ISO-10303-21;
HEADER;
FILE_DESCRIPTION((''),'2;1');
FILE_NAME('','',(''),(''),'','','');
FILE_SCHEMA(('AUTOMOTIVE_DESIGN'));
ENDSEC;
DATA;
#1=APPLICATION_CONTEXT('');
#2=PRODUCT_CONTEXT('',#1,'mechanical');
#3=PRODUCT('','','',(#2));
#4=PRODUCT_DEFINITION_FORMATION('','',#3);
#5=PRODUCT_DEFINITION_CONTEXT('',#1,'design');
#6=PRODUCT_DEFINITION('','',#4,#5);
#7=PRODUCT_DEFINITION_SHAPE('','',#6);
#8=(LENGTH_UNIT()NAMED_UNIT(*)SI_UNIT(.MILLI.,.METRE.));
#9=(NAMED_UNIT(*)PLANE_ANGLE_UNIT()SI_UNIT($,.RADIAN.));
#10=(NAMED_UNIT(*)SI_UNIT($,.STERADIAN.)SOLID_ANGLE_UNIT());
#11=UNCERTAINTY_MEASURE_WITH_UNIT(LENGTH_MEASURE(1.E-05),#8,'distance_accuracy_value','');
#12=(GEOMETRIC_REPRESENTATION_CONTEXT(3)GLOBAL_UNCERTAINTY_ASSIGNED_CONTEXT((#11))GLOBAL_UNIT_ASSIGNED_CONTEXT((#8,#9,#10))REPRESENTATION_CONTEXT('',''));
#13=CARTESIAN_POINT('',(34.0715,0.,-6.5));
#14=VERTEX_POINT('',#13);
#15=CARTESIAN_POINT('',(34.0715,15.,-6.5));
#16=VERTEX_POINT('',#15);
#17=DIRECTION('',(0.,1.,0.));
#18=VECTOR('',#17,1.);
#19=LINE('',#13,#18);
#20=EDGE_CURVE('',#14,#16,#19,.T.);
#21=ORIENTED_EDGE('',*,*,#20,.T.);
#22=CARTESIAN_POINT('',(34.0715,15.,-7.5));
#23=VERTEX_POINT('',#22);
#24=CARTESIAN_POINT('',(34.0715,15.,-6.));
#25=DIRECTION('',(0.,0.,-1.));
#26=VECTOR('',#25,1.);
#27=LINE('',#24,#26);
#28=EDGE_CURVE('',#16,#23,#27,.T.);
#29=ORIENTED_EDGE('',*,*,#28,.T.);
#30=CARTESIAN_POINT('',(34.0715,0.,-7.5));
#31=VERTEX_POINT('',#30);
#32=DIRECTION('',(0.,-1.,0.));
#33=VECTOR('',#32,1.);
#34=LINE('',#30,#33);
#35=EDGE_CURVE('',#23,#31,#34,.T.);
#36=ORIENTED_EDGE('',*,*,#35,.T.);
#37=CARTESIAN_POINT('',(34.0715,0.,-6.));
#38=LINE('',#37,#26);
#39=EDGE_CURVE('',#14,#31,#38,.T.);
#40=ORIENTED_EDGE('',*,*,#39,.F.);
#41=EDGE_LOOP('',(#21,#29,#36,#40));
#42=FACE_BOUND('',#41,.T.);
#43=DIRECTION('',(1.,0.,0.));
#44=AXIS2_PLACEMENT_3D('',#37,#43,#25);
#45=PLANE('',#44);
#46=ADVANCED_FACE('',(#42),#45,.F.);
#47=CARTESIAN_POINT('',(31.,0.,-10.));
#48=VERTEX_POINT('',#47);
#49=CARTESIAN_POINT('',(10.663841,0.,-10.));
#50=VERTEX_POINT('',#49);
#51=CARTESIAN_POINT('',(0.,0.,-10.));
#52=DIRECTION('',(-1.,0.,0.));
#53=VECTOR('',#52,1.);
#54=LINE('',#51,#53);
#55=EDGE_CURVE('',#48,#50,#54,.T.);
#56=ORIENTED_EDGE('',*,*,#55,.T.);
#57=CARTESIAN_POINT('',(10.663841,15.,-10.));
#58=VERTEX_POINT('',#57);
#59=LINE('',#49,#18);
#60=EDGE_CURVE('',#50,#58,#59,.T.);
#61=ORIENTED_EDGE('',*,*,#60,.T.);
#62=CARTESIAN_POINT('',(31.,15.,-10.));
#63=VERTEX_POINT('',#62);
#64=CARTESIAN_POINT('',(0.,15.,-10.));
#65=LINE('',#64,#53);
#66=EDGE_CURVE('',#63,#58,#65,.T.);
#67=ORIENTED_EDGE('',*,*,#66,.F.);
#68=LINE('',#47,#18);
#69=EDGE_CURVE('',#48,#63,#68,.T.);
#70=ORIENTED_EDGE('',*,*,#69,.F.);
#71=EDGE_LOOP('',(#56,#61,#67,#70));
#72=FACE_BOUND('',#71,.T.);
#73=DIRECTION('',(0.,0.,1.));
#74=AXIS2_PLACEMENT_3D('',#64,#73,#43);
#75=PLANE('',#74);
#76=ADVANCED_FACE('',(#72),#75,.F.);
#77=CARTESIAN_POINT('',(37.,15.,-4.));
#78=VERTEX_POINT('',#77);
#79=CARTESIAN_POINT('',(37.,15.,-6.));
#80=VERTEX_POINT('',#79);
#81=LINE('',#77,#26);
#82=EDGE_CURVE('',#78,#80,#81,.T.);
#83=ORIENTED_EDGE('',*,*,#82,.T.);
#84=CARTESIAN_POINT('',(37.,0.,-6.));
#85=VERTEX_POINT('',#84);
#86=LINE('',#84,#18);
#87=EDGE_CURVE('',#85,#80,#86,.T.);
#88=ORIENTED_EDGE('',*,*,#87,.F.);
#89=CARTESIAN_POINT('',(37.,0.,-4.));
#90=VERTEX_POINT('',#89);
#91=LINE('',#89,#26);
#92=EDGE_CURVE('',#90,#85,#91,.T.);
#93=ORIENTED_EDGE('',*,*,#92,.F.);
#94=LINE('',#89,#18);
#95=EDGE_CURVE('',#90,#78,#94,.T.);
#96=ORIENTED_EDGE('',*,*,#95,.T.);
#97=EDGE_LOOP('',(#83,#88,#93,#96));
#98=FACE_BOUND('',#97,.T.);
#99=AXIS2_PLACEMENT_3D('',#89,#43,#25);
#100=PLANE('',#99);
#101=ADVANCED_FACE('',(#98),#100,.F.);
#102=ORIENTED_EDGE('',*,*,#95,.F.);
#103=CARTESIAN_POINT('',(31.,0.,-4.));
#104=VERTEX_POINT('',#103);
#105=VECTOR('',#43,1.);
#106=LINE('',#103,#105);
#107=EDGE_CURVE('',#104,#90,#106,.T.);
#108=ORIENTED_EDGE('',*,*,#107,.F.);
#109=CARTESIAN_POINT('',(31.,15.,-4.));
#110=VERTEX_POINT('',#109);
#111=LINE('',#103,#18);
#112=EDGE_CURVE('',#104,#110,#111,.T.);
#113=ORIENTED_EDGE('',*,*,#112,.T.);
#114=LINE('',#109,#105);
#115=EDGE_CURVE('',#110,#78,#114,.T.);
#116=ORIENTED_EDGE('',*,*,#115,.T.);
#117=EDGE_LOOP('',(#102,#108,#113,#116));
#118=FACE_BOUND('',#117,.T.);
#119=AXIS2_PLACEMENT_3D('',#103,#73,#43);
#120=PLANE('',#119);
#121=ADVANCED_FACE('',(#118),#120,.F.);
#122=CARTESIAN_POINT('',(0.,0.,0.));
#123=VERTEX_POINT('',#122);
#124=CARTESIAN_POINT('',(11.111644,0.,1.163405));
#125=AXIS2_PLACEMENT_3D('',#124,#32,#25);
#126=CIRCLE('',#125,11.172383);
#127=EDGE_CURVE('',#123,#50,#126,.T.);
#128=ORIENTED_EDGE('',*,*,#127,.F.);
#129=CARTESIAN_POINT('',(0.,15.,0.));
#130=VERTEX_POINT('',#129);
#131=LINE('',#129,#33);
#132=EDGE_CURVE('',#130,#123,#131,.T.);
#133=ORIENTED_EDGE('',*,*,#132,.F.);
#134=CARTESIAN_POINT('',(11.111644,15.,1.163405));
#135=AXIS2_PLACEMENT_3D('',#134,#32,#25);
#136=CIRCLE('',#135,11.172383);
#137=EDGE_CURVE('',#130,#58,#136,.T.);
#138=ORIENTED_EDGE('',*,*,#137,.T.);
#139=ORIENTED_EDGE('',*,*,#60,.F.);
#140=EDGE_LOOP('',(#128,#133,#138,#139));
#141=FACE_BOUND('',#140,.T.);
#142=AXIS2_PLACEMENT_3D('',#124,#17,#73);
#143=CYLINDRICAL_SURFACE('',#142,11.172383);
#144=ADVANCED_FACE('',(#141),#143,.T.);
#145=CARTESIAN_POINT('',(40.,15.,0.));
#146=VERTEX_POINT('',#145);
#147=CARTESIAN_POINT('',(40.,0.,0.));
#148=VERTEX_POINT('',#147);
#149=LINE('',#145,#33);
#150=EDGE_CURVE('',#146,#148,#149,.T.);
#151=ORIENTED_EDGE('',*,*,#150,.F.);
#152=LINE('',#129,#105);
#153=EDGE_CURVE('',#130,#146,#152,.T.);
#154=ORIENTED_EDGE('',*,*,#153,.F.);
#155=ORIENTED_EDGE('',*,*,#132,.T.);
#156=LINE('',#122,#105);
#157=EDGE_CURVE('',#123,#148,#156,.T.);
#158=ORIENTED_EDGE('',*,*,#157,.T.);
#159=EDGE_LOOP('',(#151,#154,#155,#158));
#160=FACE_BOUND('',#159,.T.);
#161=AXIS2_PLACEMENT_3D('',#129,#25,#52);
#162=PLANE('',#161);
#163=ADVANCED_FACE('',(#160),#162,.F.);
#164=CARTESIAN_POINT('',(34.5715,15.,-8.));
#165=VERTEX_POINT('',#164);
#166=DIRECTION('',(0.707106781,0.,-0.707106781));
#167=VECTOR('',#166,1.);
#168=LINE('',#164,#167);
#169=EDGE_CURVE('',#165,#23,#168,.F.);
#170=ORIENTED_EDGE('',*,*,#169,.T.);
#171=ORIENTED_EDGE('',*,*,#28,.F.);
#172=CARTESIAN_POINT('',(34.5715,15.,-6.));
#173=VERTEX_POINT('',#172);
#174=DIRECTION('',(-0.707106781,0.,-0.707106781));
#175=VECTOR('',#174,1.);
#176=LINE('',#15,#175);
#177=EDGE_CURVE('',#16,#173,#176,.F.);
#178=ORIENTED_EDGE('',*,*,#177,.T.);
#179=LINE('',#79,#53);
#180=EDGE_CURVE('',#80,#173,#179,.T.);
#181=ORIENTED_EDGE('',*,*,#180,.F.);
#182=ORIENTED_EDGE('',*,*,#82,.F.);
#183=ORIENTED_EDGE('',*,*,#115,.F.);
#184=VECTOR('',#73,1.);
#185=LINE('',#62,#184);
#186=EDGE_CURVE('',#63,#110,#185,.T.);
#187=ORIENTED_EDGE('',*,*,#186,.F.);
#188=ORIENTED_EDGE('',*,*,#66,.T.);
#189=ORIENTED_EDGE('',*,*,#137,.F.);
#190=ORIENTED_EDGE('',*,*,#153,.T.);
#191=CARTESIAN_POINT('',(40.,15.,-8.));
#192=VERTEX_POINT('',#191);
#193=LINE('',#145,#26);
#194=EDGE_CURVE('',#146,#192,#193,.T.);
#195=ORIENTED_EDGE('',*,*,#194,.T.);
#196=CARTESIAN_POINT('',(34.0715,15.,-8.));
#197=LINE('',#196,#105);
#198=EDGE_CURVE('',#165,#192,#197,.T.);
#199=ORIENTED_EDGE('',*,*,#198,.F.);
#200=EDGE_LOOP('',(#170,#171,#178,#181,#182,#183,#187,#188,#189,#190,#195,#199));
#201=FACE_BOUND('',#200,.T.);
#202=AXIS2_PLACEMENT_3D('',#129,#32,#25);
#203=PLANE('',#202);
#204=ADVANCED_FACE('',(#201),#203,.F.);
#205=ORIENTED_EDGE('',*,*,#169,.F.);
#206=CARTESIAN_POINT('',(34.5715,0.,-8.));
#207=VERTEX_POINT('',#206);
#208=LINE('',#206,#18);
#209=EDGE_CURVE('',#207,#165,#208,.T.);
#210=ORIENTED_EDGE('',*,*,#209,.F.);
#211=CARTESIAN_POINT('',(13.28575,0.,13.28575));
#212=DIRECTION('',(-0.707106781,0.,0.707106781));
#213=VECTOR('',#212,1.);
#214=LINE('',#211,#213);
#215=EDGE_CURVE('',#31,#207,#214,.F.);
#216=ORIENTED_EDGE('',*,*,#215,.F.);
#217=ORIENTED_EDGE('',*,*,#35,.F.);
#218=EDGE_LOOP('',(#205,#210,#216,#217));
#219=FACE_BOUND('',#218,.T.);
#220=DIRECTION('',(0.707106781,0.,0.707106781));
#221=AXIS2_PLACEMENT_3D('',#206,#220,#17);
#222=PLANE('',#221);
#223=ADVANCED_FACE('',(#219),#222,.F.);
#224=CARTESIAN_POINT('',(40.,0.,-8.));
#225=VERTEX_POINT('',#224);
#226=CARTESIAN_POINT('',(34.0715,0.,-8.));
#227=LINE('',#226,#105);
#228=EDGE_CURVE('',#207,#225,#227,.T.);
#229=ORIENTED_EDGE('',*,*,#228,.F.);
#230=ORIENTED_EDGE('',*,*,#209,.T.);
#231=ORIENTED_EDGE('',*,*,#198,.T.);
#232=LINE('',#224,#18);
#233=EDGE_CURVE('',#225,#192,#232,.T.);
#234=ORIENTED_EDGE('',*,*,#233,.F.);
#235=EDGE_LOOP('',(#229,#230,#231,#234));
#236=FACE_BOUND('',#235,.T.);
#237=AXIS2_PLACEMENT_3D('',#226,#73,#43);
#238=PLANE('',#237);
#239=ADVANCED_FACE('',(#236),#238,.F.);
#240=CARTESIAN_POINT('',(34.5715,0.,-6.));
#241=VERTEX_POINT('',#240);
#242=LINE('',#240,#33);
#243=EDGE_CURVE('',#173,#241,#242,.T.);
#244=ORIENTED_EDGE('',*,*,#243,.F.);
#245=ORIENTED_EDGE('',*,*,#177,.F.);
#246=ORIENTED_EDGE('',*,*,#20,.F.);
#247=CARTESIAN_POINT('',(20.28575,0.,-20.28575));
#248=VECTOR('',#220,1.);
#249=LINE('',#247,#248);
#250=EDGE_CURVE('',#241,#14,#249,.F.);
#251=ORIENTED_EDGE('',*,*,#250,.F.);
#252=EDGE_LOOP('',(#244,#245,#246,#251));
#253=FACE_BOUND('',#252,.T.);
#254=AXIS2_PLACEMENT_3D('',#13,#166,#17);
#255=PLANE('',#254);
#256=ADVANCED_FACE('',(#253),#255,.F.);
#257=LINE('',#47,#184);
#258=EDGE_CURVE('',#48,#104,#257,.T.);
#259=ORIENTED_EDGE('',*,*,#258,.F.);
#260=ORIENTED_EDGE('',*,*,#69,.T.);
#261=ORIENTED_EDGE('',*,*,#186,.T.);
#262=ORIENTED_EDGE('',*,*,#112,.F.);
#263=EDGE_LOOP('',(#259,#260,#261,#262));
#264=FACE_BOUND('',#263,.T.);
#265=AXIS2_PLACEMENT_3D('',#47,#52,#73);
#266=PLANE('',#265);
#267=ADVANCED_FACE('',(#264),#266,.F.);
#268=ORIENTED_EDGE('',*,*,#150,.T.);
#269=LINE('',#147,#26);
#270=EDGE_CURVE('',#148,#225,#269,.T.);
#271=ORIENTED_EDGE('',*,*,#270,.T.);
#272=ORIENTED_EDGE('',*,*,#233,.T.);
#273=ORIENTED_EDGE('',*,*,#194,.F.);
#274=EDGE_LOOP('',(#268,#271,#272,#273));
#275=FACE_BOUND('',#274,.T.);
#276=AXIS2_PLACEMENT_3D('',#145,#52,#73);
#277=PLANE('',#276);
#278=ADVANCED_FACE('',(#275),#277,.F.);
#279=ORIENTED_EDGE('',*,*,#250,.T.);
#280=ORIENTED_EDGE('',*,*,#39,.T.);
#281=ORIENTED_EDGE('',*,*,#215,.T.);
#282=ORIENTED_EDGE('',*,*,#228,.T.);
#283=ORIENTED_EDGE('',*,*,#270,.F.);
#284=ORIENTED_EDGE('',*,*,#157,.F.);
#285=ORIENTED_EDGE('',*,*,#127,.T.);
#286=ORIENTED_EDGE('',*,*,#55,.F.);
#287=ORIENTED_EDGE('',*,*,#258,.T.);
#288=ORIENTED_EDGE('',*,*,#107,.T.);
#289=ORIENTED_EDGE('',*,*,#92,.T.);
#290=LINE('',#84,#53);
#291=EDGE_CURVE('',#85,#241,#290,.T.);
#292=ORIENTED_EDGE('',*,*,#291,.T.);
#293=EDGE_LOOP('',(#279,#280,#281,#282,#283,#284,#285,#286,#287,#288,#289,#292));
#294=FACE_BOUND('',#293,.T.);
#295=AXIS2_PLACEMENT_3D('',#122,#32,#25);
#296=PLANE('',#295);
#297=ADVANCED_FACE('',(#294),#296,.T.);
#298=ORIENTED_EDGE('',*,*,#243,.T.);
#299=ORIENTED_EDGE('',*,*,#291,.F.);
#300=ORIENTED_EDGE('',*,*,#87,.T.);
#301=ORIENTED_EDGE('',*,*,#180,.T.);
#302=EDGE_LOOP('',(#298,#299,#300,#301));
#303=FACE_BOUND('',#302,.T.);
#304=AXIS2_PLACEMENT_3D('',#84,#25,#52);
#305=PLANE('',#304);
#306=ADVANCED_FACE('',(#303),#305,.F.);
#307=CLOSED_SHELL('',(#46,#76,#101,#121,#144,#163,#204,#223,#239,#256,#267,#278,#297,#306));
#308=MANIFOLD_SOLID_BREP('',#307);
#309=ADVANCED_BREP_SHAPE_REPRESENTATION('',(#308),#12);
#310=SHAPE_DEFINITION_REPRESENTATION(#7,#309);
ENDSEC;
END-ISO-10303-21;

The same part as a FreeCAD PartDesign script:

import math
import FreeCAD as App
import Part
import Sketcher

V = App.Vector


def edges_at(feature, points):
    """Names of the edges that pass closest to the given points."""
    edges = feature.Shape.Edges
    near = lambda p: min(range(len(edges)), key=lambda i: edges[i].distToShape(Part.Vertex(*p))[0])
    return sorted({f"Edge{near(p) + 1}" for p in points})

doc = App.newDocument("Part")
body = doc.addObject("PartDesign::Body", "Body")

sketch1 = body.newObject("Sketcher::SketchObject", "Sketch")
sketch1.AttachmentSupport = (doc.getObject("XZ_Plane"), [""])
sketch1.MapMode = "FlatFace"
sketch1.addGeometry(Part.LineSegment(V(0, -10, 0), V(0, 0, 0)), False)
sketch1.addGeometry(Part.LineSegment(V(0, 0, 0), V(40, 0, 0)), False)
sketch1.addGeometry(Part.LineSegment(V(40, 0, 0), V(40, -10, 0)), False)
sketch1.addGeometry(Part.LineSegment(V(40, -10, 0), V(0, -10, 0)), False)
sketch1.addConstraint(Sketcher.Constraint("Coincident", 0, 2, 1, 1))
sketch1.addConstraint(Sketcher.Constraint("Coincident", 1, 2, 2, 1))
sketch1.addConstraint(Sketcher.Constraint("Coincident", 2, 2, 3, 1))
sketch1.addConstraint(Sketcher.Constraint("Coincident", 3, 2, 0, 1))
sketch1.addConstraint(Sketcher.Constraint("Vertical", 0))
sketch1.addConstraint(Sketcher.Constraint("Horizontal", 1))
sketch1.addConstraint(Sketcher.Constraint("Vertical", 2))
sketch1.addConstraint(Sketcher.Constraint("Horizontal", 3))
sketch1.addConstraint(Sketcher.Constraint("Coincident", 0, 2, -1, 1))
sketch1.addConstraint(Sketcher.Constraint("DistanceX", 1, 1, 1, 2, 40.0))
sketch1.addConstraint(Sketcher.Constraint("DistanceY", 0, 1, 0, 2, 10.0))
pad1 = body.newObject("PartDesign::Pad", "Pad")
pad1.Profile = sketch1
pad1.Length = 15
pad1.Reversed = True

sketch2 = body.newObject("Sketcher::SketchObject", "Sketch001")
sketch2.AttachmentSupport = (doc.getObject("XZ_Plane"), [""])
sketch2.MapMode = "FlatFace"
sketch2.AttachmentOffset = App.Placement(V(0, 0, -15), App.Rotation())
sketch2.addGeometry(Part.LineSegment(V(10.663841, -10, 0), V(0, -10, 0)), False)
sketch2.addGeometry(Part.LineSegment(V(0, -10, 0), V(0, 0, 0)), False)
sketch2.addGeometry(Part.ArcOfCircle(Part.Circle(V(11.111644, 1.163405, 0), V(0, 0, 1), 11.172383), math.radians(-174.022826), math.radians(-92.297103)), False)
sketch2.addConstraint(Sketcher.Constraint("Coincident", 0, 2, 1, 1))
sketch2.addConstraint(Sketcher.Constraint("Coincident", 1, 2, 2, 1))
sketch2.addConstraint(Sketcher.Constraint("Coincident", 2, 2, 0, 1))
sketch2.addConstraint(Sketcher.Constraint("Horizontal", 0))
sketch2.addConstraint(Sketcher.Constraint("Vertical", 1))
sketch2.addConstraint(Sketcher.Constraint("Coincident", 1, 2, -1, 1))
sketch2.addConstraint(Sketcher.Constraint("DistanceY", 1, 1, 1, 2, 10.0))
sketch2.addConstraint(Sketcher.Constraint("Radius", 2, 11.172383))
sketch2.addConstraint(Sketcher.Constraint("DistanceX", 0, 2, 0, 1, 10.663841))
pocket1 = body.newObject("PartDesign::Pocket", "Pocket")
pocket1.Profile = sketch2
pocket1.Type = "ThroughAll"
pocket1.Reversed = True

sketch3 = body.newObject("Sketcher::SketchObject", "Sketch002")
sketch3.AttachmentSupport = (doc.getObject("XZ_Plane"), [""])
sketch3.MapMode = "FlatFace"
sketch3.AttachmentOffset = App.Placement(V(0, 0, -15), App.Rotation())
sketch3.addGeometry(Part.LineSegment(V(40, -10, 0), V(31, -10, 0)), False)
sketch3.addGeometry(Part.LineSegment(V(31, -10, 0), V(31, -4, 0)), False)
sketch3.addGeometry(Part.LineSegment(V(31, -4, 0), V(37, -4, 0)), False)
sketch3.addGeometry(Part.LineSegment(V(37, -4, 0), V(37, -6, 0)), False)
sketch3.addGeometry(Part.LineSegment(V(37, -6, 0), V(34.0715, -6, 0)), False)
sketch3.addGeometry(Part.LineSegment(V(34.0715, -6, 0), V(34.0715, -8, 0)), False)
sketch3.addGeometry(Part.LineSegment(V(34.0715, -8, 0), V(40, -8, 0)), False)
sketch3.addGeometry(Part.LineSegment(V(40, -8, 0), V(40, -10, 0)), False)
sketch3.addConstraint(Sketcher.Constraint("Coincident", 0, 2, 1, 1))
sketch3.addConstraint(Sketcher.Constraint("Coincident", 1, 2, 2, 1))
sketch3.addConstraint(Sketcher.Constraint("Coincident", 2, 2, 3, 1))
sketch3.addConstraint(Sketcher.Constraint("Coincident", 3, 2, 4, 1))
sketch3.addConstraint(Sketcher.Constraint("Coincident", 4, 2, 5, 1))
sketch3.addConstraint(Sketcher.Constraint("Coincident", 5, 2, 6, 1))
sketch3.addConstraint(Sketcher.Constraint("Coincident", 6, 2, 7, 1))
sketch3.addConstraint(Sketcher.Constraint("Coincident", 7, 2, 0, 1))
sketch3.addConstraint(Sketcher.Constraint("Horizontal", 0))
sketch3.addConstraint(Sketcher.Constraint("Vertical", 1))
sketch3.addConstraint(Sketcher.Constraint("Horizontal", 2))
sketch3.addConstraint(Sketcher.Constraint("Vertical", 3))
sketch3.addConstraint(Sketcher.Constraint("Horizontal", 4))
sketch3.addConstraint(Sketcher.Constraint("Vertical", 5))
sketch3.addConstraint(Sketcher.Constraint("Horizontal", 6))
sketch3.addConstraint(Sketcher.Constraint("Vertical", 7))
sketch3.addConstraint(Sketcher.Constraint("Equal", 2, 1))
sketch3.addConstraint(Sketcher.Constraint("Equal", 3, 5))
sketch3.addConstraint(Sketcher.Constraint("Equal", 5, 7))
sketch3.addConstraint(Sketcher.Constraint("DistanceX", 0, 2, 0, 1, 9.0))
sketch3.addConstraint(Sketcher.Constraint("DistanceX", 2, 1, 2, 2, 6.0))
sketch3.addConstraint(Sketcher.Constraint("DistanceX", -1, 1, 0, 2, 31.0))
sketch3.addConstraint(Sketcher.Constraint("DistanceY", 0, 2, -1, 1, 10.0))
sketch3.addConstraint(Sketcher.Constraint("DistanceX", 4, 2, 4, 1, 2.9285))
pocket2 = body.newObject("PartDesign::Pocket", "Pocket001")
pocket2.Profile = sketch3
pocket2.Type = "ThroughAll"
pocket2.Reversed = True
doc.recompute()

chamfer = body.newObject("PartDesign::Chamfer", "Chamfer")
chamfer.Base = (pocket2, edges_at(pocket2, [(34.071, 7.5, -8), (34.071, 7.5, -6)]))
chamfer.Size = 0.5

doc.recompute()
